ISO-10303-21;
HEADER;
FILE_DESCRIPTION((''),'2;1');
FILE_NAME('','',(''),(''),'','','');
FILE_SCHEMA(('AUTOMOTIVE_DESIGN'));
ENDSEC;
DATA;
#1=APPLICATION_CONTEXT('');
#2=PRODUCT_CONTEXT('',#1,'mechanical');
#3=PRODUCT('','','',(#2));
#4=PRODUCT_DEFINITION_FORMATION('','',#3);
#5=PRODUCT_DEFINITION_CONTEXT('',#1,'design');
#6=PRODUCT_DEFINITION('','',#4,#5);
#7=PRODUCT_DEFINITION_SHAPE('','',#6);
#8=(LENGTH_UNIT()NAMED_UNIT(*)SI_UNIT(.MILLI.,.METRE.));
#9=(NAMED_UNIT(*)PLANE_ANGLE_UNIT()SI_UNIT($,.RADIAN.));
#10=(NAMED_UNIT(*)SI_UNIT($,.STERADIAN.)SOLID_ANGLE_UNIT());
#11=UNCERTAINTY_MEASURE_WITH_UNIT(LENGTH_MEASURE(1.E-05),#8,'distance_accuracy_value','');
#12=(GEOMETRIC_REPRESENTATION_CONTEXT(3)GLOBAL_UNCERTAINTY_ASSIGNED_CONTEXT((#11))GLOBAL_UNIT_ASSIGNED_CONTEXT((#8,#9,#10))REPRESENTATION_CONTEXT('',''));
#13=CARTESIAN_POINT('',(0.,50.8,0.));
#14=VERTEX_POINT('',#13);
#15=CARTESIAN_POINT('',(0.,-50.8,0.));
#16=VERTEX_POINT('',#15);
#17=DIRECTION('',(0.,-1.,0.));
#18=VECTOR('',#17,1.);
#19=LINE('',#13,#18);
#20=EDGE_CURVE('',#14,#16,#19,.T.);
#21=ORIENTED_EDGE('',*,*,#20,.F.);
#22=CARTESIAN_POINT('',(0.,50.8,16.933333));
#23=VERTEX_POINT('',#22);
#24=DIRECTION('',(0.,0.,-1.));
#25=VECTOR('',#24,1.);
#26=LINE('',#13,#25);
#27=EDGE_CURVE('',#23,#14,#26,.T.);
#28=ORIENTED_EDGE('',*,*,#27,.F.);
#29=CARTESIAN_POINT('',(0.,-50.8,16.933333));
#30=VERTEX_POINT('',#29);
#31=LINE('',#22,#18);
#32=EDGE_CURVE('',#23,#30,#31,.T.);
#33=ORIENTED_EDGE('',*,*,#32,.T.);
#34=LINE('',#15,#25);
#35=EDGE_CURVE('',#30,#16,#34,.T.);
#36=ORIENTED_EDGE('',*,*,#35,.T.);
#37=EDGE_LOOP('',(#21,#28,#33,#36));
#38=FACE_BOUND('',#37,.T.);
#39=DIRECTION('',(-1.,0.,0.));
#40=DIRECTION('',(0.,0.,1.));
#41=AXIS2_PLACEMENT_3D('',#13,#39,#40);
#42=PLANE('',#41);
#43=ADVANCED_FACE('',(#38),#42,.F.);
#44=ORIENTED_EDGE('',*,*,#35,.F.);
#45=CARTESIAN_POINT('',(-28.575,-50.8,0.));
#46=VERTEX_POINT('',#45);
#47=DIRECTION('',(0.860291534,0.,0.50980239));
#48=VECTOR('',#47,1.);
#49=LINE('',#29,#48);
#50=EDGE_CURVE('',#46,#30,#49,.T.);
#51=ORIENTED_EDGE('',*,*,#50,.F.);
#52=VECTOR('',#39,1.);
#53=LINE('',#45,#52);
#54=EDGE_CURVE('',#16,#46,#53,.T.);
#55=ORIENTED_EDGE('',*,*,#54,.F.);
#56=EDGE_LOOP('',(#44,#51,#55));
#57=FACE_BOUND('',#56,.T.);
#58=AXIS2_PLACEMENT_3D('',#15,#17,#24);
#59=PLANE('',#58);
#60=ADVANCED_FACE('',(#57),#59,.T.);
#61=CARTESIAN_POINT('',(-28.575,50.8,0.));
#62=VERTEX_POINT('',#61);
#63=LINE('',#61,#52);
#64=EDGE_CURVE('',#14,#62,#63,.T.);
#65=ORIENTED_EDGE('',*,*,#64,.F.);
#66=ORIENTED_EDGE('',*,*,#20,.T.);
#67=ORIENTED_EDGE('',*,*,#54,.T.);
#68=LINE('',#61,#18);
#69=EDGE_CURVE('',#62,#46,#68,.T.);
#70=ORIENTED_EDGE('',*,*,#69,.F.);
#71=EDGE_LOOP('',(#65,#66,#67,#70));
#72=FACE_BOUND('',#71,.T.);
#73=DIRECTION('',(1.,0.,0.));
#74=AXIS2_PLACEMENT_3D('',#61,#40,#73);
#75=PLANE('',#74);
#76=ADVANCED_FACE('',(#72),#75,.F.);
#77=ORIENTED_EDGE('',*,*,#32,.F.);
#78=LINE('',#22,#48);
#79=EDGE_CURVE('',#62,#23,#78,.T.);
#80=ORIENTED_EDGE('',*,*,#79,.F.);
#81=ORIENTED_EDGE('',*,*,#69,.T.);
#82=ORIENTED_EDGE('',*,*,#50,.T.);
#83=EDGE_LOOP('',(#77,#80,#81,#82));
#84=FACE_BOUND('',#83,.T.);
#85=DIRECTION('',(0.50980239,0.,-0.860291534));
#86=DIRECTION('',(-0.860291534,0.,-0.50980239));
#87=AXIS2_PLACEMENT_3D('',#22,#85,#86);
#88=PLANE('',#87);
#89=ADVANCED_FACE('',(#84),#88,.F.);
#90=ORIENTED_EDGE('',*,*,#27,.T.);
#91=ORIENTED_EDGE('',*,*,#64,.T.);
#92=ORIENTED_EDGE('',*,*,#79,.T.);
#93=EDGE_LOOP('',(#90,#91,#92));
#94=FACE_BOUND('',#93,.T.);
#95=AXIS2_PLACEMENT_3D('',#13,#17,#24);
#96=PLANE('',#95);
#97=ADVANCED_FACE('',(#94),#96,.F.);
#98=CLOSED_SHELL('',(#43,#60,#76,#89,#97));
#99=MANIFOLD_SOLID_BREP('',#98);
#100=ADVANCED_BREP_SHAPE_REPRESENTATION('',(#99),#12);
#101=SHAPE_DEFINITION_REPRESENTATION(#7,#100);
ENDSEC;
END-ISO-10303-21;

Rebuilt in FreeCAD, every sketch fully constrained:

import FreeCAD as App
import Part
import Sketcher

V = App.Vector
Q = App.Units.Quantity

doc = App.newDocument("Part")
body = doc.addObject("PartDesign::Body", "Body")

sketch1 = body.newObject("Sketcher::SketchObject", "Sketch")
sketch1.AttachmentSupport = (doc.getObject("XZ_Plane"), [""])
sketch1.MapMode = "FlatFace"
sketch1.addGeometry(Part.LineSegment(V(0, 17, 0), V(0, 0, 0)), False)
sketch1.addGeometry(Part.LineSegment(V(0, 0, 0), V(-29, 0, 0)), False)
sketch1.addGeometry(Part.LineSegment(V(-29, 0, 0), V(0, 17, 0)), False)
sketch1.addConstraint(Sketcher.Constraint("Coincident", 0, 2, 1, 1))
sketch1.addConstraint(Sketcher.Constraint("Coincident", 1, 2, 2, 1))
sketch1.addConstraint(Sketcher.Constraint("Coincident", 2, 2, 0, 1))
sketch1.addConstraint(Sketcher.Constraint("Vertical", 0))
sketch1.addConstraint(Sketcher.Constraint("Horizontal", 1))
sketch1.addConstraint(Sketcher.Constraint("Coincident", 0, 2, -1, 1))
sketch1.addConstraint(Sketcher.Constraint("DistanceX", 1, 2, 1, 1, Q("1.125 in")))
sketch1.addConstraint(Sketcher.Constraint("DistanceY", 0, 2, 0, 1, 16.933333))
pad1 = body.newObject("PartDesign::Pad", "Pad")
pad1.Profile = sketch1
pad1.Length = Q("4 in")
pad1.Midplane = True

doc.recompute()
